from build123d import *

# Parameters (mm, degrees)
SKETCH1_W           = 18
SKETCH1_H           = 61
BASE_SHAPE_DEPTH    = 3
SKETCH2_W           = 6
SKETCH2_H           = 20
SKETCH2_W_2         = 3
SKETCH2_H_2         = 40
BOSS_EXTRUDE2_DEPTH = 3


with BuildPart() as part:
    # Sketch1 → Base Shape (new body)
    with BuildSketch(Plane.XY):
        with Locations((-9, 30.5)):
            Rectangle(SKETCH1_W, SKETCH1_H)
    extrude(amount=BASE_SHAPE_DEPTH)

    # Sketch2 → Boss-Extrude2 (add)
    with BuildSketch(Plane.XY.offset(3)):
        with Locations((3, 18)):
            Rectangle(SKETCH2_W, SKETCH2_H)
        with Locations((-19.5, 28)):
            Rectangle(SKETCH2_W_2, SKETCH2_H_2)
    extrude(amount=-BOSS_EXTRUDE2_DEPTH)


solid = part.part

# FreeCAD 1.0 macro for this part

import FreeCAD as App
import Part
import Sketcher
from FreeCAD import Vector

doc = App.newDocument("Part")
params = doc.addObject("Spreadsheet::Sheet", "Params")
for row, (alias, value) in enumerate([
    ("sketch1_width", "18 mm"),
    ("sketch1_height", "61 mm"),
    ("pad1_length", "3 mm"),
    ("sketch2_width", "6 mm"),
    ("sketch2_width2", "3 mm"),
    ("sketch2_height", "20 mm"),
    ("sketch2_height2", "40 mm"),
    ("pad2_length", "3 mm"),
], start=1):
    params.set(f"A{row}", alias)
    params.set(f"B{row}", "=" + value)
    params.setAlias(f"B{row}", alias)

body = doc.addObject("PartDesign::Body", "Body")

# Sketch on XY plane
sketch1 = doc.addObject("Sketcher::SketchObject", "Sketch")
body.addObject(sketch1)
sketch1.AttachmentSupport = (doc.XY_Plane, [""])
sketch1.MapMode = "FlatFace"
sketch1.addGeometry(Part.LineSegment(Vector(-18, 61, 0), Vector(-18, 0, 0)), False)
sketch1.addGeometry(Part.LineSegment(Vector(-18, 0, 0), Vector(0, 0, 0)), False)
sketch1.addGeometry(Part.LineSegment(Vector(0, 0, 0), Vector(0, 61, 0)), False)
sketch1.addGeometry(Part.LineSegment(Vector(0, 61, 0), Vector(-18, 61, 0)), False)
sketch1.addConstraint(Sketcher.Constraint("Coincident", 0, 2, 1, 1))
sketch1.addConstraint(Sketcher.Constraint("Coincident", 1, 2, 2, 1))
sketch1.addConstraint(Sketcher.Constraint("Coincident", 2, 2, 3, 1))
sketch1.addConstraint(Sketcher.Constraint("Coincident", 3, 2, 0, 1))
sketch1.addConstraint(Sketcher.Constraint("Vertical", 0))
sketch1.addConstraint(Sketcher.Constraint("Horizontal", 1))
sketch1.addConstraint(Sketcher.Constraint("Vertical", 2))
sketch1.addConstraint(Sketcher.Constraint("Horizontal", 3))
sketch1.addConstraint(Sketcher.Constraint("Coincident", 1, 2, -1, 1))
sketch1.addConstraint(Sketcher.Constraint("DistanceX", 1, 1, 1, 2, 18.0))
sketch1.addConstraint(Sketcher.Constraint("DistanceY", 0, 2, 0, 1, 61.0))
sketch1.setExpression("Constraints[9]", "Params.sketch1_width")
sketch1.setExpression("Constraints[10]", "Params.sketch1_height")
pad1 = doc.addObject("PartDesign::Pad", "Pad")
body.addObject(pad1)
pad1.Profile = sketch1
pad1.setExpression("Length", "Params.pad1_length")

# Sketch on XY plane
sketch2 = doc.addObject("Sketcher::SketchObject", "Sketch001")
body.addObject(sketch2)
sketch2.AttachmentSupport = (doc.XY_Plane, [""])
sketch2.MapMode = "FlatFace"
sketch2.AttachmentOffset = App.Placement(Vector(0, 0, 3), App.Rotation())
sketch2.addGeometry(Part.LineSegment(Vector(0, 28, 0), Vector(0, 8, 0)), False)
sketch2.addGeometry(Part.LineSegment(Vector(0, 8, 0), Vector(6, 8, 0)), False)
sketch2.addGeometry(Part.LineSegment(Vector(6, 8, 0), Vector(6, 28, 0)), False)
sketch2.addGeometry(Part.LineSegment(Vector(6, 28, 0), Vector(0, 28, 0)), False)
sketch2.addGeometry(Part.LineSegment(Vector(-21, 48, 0), Vector(-21, 8, 0)), False)
sketch2.addGeometry(Part.LineSegment(Vector(-21, 8, 0), Vector(-18, 8, 0)), False)
sketch2.addGeometry(Part.LineSegment(Vector(-18, 8, 0), Vector(-18, 48, 0)), False)
sketch2.addGeometry(Part.LineSegment(Vector(-18, 48, 0), Vector(-21, 48, 0)), False)
sketch2.addConstraint(Sketcher.Constraint("Coincident", 0, 2, 1, 1))
sketch2.addConstraint(Sketcher.Constraint("Coincident", 1, 2, 2, 1))
sketch2.addConstraint(Sketcher.Constraint("Coincident", 2, 2, 3, 1))
sketch2.addConstraint(Sketcher.Constraint("Coincident", 3, 2, 0, 1))
sketch2.addConstraint(Sketcher.Constraint("Coincident", 4, 2, 5, 1))
sketch2.addConstraint(Sketcher.Constraint("Coincident", 5, 2, 6, 1))
sketch2.addConstraint(Sketcher.Constraint("Coincident", 6, 2, 7, 1))
sketch2.addConstraint(Sketcher.Constraint("Coincident", 7, 2, 4, 1))
sketch2.addConstraint(Sketcher.Constraint("Vertical", 0))
sketch2.addConstraint(Sketcher.Constraint("Horizontal", 1))
sketch2.addConstraint(Sketcher.Constraint("Vertical", 2))
sketch2.addConstraint(Sketcher.Constraint("Horizontal", 3))
sketch2.addConstraint(Sketcher.Constraint("Vertical", 4))
sketch2.addConstraint(Sketcher.Constraint("Horizontal", 5))
sketch2.addConstraint(Sketcher.Constraint("Vertical", 6))
sketch2.addConstraint(Sketcher.Constraint("Horizontal", 7))
sketch2.addConstraint(Sketcher.Constraint("PointOnObject", 0, 2, -2))
sketch2.addConstraint(Sketcher.Constraint("Horizontal", 1, 2, 4, 2))
sketch2.addConstraint(Sketcher.Constraint("DistanceX", 1, 1, 1, 2, 6.0))
sketch2.addConstraint(Sketcher.Constraint("DistanceX", 5, 1, 5, 2, 3.0))
sketch2.addConstraint(Sketcher.Constraint("DistanceY", 0, 2, 0, 1, 20.0))
sketch2.addConstraint(Sketcher.Constraint("DistanceY", 4, 2, 4, 1, 40.0))
sketch2.addConstraint(Sketcher.Constraint("DistanceY", -1, 1, 0, 2, 8.0))
sketch2.addConstraint(Sketcher.Constraint("DistanceX", 4, 2, -1, 1, 21.0))
sketch2.setExpression("Constraints[18]", "Params.sketch2_width")
sketch2.setExpression("Constraints[19]", "Params.sketch2_width2")
sketch2.setExpression("Constraints[20]", "Params.sketch2_height")
sketch2.setExpression("Constraints[21]", "Params.sketch2_height2")
pad2 = doc.addObject("PartDesign::Pad", "Pad001")
body.addObject(pad2)
pad2.Profile = sketch2
pad2.setExpression("Length", "Params.pad2_length")
pad2.Reversed = True

doc.recompute()
